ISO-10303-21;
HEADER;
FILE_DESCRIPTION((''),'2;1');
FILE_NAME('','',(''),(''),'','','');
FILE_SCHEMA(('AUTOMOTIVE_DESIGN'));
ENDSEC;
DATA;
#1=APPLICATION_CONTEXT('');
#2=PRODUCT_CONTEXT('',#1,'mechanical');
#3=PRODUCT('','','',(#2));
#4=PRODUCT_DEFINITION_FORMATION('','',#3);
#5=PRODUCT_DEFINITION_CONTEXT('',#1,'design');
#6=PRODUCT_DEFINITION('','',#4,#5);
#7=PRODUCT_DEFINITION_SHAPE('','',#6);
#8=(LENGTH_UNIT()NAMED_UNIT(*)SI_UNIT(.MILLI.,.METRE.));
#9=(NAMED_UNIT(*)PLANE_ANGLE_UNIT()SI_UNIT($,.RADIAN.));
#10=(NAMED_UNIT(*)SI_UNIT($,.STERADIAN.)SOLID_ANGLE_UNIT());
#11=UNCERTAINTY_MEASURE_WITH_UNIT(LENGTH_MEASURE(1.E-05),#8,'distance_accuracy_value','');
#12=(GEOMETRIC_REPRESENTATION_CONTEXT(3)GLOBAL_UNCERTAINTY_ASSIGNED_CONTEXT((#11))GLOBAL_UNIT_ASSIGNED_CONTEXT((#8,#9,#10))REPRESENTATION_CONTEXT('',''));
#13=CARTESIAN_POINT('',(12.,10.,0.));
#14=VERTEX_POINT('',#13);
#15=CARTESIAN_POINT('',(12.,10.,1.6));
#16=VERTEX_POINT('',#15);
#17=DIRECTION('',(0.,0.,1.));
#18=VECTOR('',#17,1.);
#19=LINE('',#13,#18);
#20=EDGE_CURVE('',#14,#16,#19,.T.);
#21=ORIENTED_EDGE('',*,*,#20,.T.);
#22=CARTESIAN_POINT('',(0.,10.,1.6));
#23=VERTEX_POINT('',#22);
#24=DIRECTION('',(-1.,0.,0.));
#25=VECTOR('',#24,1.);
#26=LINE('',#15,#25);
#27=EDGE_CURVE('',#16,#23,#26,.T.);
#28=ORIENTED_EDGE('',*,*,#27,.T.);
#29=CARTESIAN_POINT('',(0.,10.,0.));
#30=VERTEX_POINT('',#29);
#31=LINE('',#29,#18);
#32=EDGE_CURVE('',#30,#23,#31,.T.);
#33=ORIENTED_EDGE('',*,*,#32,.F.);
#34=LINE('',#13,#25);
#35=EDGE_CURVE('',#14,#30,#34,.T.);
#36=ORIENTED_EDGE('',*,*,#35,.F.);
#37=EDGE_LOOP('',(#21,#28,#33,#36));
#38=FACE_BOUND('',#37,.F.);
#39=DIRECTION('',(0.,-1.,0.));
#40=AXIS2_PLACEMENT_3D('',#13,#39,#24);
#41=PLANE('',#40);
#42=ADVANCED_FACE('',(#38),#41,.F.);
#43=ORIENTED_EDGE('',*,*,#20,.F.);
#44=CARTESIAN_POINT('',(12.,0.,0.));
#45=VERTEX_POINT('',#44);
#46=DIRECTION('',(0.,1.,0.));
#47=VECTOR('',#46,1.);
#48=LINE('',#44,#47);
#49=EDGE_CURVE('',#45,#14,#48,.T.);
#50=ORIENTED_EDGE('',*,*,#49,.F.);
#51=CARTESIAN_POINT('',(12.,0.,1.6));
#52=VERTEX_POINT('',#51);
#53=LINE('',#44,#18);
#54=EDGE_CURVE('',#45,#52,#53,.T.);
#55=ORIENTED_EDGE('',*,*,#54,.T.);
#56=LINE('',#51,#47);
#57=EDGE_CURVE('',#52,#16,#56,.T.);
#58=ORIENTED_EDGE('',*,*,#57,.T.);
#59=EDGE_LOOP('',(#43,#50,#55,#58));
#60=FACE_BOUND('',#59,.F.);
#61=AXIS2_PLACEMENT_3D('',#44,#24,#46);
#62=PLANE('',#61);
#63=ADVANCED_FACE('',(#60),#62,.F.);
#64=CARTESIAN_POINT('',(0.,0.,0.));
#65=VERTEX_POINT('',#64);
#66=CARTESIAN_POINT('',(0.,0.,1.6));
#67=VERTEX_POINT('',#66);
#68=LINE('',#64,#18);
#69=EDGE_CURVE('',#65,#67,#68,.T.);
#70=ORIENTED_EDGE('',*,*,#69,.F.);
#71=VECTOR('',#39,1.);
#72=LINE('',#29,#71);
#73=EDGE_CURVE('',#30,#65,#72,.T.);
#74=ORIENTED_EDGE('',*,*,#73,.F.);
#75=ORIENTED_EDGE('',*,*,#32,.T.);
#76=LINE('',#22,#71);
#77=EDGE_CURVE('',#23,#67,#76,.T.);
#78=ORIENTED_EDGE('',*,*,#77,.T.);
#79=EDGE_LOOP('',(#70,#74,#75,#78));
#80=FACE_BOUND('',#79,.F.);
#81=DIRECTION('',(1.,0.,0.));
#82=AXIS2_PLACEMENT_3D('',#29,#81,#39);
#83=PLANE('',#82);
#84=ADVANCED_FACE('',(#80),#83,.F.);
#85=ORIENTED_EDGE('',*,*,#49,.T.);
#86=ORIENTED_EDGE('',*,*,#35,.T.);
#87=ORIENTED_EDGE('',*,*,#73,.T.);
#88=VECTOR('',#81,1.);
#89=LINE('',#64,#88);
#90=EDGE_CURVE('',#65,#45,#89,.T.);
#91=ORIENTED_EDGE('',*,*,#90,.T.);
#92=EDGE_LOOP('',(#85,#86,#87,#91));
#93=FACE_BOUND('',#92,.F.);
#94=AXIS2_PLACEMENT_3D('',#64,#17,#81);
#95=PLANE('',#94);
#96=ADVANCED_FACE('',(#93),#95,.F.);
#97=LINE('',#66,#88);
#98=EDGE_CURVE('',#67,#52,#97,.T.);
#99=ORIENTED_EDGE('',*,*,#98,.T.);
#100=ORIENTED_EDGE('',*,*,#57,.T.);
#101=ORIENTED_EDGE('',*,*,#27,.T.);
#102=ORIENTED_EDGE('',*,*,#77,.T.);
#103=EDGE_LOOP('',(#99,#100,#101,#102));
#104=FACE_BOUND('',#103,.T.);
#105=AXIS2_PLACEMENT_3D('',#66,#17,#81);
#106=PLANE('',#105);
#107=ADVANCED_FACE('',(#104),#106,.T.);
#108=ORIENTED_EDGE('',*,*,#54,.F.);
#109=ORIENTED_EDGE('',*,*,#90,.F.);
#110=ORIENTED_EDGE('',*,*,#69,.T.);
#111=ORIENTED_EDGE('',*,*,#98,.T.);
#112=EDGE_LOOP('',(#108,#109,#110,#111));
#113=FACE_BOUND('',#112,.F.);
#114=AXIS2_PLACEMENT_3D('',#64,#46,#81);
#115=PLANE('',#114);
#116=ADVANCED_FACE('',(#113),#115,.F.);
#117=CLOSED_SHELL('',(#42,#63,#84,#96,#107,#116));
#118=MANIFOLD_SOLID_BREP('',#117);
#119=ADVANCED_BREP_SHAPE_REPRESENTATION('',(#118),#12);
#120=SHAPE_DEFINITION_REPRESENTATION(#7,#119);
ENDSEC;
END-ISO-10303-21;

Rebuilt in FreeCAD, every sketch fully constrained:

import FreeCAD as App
import Part
import Sketcher
from FreeCAD import Vector
Q = App.Units.Quantity


def add_polygon(sketch, points):
    """Adds a closed chain of lines whose ends are joined by coincident constraints."""
    first, n = sketch.GeometryCount, len(points)
    for a, b in zip(points, points[1:] + points[:1]):
        sketch.addGeometry(Part.LineSegment(App.Vector(*a, 0), App.Vector(*b, 0)), False)
    for i in range(n):
        sketch.addConstraint(Sketcher.Constraint("Coincident", first + i, 2, first + (i + 1) % n, 1))

doc = App.newDocument("Part")
body = doc.addObject("PartDesign::Body", "Body")

# Sketch on XY plane
sketch1 = body.newObject("Sketcher::SketchObject", "Sketch")
sketch1.AttachmentSupport = (doc.getObject("XY_Plane"), [""])
sketch1.MapMode = "FlatFace"
add_polygon(sketch1, [(0, 10), (0, 0), (12, 0), (12, 10)])  # lines 0-3
sketch1.addConstraint([
    Sketcher.Constraint("Vertical", 0),
    Sketcher.Constraint("Horizontal", 1),
    Sketcher.Constraint("Vertical", 2),
    Sketcher.Constraint("Horizontal", 3),
    Sketcher.Constraint("Coincident", 0, 2, -1, 1),
    Sketcher.Constraint("DistanceX", 1, 1, 1, 2, Q("12 mm")),
    Sketcher.Constraint("DistanceY", 0, 2, 0, 1, Q("10 mm")),
])
pad1 = body.newObject("PartDesign::Pad", "Pad")
pad1.Profile = sketch1
pad1.Length = 1.6

doc.recompute()
